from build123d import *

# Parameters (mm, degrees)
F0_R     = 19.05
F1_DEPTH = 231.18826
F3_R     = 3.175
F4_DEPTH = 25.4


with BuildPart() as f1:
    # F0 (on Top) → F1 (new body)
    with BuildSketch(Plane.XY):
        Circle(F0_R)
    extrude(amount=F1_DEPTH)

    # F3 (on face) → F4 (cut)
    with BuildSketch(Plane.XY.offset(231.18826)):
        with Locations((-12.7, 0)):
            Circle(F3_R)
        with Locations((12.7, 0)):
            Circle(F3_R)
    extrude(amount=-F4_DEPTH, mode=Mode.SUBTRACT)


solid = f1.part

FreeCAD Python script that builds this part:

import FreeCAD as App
import Part
import Sketcher
from FreeCAD import Vector
Q = App.Units.Quantity

doc = App.newDocument("Part")
body = doc.addObject("PartDesign::Body", "Body")

sketch1 = body.newObject("Sketcher::SketchObject", "Sketch")
sketch1.AttachmentSupport = (doc.getObject("XY_Plane"), [""])
sketch1.MapMode = "FlatFace"
sketch1.addGeometry(Part.Circle(Vector(0, 0, 0), Vector(0, 0, 1), 19), False)
sketch1.addConstraint([
    Sketcher.Constraint("Coincident", 0, 3, -1, 1),
    Sketcher.Constraint("Diameter", 0, Q("1.5 in")),
])
pad1 = body.newObject("PartDesign::Pad", "Pad")
pad1.Profile = sketch1
pad1.Length = Q("9.1019 in")

sketch2 = body.newObject("Sketcher::SketchObject", "Sketch001")
sketch2.AttachmentSupport = (doc.getObject("XY_Plane"), [""])
sketch2.MapMode = "FlatFace"
sketch2.AttachmentOffset = App.Placement(Vector(0, 0, 9.1019 * 25.4), App.Rotation())
sketch2.addGeometry([
    Part.Circle(Vector(-12.7, 0, 0), Vector(0, 0, 1), 3.2),
    Part.Circle(Vector(12.7, 0, 0), Vector(0, 0, 1), 3.2),
], False)
sketch2.addConstraint([
    Sketcher.Constraint("Equal", 0, 1),
    Sketcher.Constraint("Symmetric", 0, 3, 1, 3, -1, 1),
    Sketcher.Constraint("PointOnObject", 0, 3, -1),
    Sketcher.Constraint("Diameter", 0, Q("0.25 in")),
    Sketcher.Constraint("DistanceX", 0, 3, 1, 3, Q("1 in")),
])
pocket1 = body.newObject("PartDesign::Pocket", "Pocket")
pocket1.Profile = sketch2
pocket1.Length = Q("1 in")

doc.recompute()
